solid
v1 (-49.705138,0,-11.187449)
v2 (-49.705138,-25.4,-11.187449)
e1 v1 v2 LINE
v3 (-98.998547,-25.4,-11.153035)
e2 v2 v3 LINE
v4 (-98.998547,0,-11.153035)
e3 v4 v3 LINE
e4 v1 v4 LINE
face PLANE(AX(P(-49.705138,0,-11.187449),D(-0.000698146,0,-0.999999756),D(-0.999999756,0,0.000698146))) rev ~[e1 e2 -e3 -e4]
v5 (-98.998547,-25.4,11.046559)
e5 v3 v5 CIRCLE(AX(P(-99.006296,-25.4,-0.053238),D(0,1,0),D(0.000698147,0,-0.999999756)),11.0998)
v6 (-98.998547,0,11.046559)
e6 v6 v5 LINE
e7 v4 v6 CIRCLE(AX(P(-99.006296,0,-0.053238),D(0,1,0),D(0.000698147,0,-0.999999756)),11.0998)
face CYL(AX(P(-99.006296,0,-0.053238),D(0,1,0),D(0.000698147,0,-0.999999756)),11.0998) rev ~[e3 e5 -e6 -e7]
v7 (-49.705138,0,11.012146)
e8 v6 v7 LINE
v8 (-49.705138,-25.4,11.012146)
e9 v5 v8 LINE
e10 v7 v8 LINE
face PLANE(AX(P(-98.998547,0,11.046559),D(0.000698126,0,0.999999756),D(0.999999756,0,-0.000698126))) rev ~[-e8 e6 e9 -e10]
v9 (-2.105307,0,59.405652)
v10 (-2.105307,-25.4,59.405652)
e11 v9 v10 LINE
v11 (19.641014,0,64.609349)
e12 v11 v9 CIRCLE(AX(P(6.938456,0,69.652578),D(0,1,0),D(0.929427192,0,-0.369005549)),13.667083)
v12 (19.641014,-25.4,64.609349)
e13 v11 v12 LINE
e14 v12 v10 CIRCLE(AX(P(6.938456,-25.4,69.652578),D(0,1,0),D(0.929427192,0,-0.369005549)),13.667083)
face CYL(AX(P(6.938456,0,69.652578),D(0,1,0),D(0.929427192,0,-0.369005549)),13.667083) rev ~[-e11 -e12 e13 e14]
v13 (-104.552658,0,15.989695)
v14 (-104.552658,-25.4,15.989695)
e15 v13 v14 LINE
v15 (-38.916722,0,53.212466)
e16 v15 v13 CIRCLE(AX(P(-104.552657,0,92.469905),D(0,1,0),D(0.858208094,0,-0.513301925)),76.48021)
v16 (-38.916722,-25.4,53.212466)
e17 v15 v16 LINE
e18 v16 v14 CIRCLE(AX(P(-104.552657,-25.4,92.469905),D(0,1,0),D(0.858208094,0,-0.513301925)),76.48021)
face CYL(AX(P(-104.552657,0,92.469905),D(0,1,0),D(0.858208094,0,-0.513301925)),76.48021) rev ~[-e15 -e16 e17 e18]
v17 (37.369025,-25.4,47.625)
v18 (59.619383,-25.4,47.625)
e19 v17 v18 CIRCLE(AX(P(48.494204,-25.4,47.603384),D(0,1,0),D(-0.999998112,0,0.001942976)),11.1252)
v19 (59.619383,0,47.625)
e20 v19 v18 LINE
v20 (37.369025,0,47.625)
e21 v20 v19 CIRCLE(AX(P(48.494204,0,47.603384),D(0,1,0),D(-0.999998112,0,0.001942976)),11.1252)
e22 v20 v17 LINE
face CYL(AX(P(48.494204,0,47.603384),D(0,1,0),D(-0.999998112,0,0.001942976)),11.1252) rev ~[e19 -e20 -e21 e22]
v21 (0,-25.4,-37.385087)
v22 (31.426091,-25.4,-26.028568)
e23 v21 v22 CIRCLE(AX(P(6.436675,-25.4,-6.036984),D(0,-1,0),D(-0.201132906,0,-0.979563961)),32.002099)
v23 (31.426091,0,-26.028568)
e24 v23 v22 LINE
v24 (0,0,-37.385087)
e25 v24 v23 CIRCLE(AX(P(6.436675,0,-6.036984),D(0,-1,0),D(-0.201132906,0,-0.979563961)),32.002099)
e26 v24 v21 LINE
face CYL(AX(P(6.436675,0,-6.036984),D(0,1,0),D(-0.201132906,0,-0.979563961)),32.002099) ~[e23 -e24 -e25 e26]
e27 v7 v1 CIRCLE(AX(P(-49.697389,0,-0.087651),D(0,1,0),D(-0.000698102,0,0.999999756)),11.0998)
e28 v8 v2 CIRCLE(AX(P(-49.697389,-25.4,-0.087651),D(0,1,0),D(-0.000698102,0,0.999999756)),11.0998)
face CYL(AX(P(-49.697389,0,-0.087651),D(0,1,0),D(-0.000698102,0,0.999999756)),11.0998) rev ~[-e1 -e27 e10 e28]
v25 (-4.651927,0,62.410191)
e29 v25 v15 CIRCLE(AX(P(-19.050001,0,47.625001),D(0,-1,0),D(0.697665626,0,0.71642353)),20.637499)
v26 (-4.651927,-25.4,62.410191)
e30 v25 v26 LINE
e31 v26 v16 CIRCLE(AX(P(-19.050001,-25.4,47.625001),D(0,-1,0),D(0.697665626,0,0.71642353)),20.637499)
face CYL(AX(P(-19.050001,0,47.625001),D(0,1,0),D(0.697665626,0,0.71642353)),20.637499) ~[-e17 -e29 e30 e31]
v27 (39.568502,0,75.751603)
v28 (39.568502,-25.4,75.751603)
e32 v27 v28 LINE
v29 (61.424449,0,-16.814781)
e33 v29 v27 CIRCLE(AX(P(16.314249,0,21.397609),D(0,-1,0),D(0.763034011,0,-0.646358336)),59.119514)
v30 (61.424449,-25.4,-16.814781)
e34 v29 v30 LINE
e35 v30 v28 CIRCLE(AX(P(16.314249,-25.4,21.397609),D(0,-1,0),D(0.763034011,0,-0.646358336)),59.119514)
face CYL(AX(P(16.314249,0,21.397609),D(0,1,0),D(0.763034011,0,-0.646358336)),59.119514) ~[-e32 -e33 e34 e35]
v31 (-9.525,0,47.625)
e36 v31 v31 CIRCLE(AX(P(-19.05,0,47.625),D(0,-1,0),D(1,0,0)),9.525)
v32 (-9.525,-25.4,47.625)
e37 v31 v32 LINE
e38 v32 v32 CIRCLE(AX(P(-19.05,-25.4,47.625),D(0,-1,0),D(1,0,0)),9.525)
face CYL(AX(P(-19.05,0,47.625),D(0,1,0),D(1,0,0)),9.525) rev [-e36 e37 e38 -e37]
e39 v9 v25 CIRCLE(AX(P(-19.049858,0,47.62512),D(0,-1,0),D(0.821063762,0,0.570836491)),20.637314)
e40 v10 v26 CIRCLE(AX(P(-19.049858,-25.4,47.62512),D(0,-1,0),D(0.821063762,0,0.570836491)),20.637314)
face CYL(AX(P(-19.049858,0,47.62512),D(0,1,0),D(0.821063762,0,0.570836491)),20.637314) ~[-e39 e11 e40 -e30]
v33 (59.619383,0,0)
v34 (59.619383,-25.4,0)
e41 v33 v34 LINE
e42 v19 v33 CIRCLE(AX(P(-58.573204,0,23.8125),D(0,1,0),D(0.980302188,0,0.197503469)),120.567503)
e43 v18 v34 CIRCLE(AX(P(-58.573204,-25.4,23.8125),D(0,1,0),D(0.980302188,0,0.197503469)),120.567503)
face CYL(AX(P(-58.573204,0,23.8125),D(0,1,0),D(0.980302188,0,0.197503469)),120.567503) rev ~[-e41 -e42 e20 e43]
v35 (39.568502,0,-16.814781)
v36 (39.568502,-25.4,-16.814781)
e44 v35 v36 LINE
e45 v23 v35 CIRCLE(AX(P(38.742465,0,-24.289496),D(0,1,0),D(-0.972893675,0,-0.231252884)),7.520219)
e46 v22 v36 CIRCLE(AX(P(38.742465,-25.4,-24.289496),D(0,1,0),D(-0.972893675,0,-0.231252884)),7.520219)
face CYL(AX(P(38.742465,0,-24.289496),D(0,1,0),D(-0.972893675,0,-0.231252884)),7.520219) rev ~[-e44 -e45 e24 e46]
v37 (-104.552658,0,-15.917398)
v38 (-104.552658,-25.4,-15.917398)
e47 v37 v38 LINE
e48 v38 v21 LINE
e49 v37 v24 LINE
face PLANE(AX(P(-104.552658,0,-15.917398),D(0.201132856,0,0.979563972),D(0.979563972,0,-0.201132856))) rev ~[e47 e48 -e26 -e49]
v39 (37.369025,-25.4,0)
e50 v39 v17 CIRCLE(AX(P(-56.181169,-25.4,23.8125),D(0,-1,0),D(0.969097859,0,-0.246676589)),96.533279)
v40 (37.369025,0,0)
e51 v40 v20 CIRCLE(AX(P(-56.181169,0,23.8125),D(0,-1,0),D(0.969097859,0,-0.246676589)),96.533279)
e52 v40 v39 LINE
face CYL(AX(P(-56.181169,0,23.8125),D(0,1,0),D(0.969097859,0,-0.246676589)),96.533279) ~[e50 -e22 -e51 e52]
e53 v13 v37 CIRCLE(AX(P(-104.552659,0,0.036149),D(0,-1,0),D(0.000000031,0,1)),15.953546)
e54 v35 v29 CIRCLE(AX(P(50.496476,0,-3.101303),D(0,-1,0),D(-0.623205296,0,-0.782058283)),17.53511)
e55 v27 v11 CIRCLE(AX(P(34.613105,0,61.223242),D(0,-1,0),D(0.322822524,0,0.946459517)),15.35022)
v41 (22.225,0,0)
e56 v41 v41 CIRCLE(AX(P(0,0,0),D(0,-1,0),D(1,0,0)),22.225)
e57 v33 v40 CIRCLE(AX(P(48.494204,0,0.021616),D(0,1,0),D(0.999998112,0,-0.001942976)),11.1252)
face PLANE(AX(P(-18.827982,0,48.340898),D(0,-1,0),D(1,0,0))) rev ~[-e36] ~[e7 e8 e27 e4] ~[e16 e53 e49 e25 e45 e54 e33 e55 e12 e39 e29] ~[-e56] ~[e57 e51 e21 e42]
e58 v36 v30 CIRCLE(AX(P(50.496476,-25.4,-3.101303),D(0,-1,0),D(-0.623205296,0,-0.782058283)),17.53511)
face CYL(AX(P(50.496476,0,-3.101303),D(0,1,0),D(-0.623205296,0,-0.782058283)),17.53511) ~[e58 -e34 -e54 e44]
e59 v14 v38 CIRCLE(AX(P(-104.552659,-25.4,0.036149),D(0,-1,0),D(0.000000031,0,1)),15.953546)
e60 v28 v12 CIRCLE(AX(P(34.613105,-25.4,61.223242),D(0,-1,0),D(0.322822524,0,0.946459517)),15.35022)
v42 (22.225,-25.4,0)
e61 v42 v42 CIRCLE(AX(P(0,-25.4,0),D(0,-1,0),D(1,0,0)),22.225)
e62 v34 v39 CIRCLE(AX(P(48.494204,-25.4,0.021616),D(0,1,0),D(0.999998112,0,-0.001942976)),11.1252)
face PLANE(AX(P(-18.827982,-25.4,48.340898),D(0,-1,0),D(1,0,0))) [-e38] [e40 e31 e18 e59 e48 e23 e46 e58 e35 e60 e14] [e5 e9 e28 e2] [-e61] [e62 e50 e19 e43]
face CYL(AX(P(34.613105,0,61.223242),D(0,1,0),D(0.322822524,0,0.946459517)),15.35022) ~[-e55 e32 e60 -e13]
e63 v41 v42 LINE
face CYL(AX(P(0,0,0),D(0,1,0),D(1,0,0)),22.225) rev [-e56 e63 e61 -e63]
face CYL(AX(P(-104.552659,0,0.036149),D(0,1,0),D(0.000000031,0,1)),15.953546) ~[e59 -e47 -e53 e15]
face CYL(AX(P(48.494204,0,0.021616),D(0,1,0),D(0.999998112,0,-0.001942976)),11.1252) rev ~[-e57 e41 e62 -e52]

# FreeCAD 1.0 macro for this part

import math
import FreeCAD as App
import Part
import Sketcher
from FreeCAD import Vector
Q = App.Units.Quantity

doc = App.newDocument("Part")
body = doc.addObject("PartDesign::Body", "Body")

# Sketch on XZ plane
sketch1 = body.newObject("Sketcher::SketchObject", "Sketch")
sketch1.AttachmentSupport = (doc.getObject("XZ_Plane"), [""])
sketch1.MapMode = "FlatFace"
sketch1.addGeometry([
    Part.ArcOfCircle(Part.Circle(Vector(-19.049858, 47.62512, 0), Vector(0, 0, 1), 20.637314), math.radians(34.808577), math.radians(45.760038)),  # 0
    Part.ArcOfCircle(Part.Circle(Vector(-19.050001, 47.625001, 0), Vector(0, 0, 1), 20.637499), math.radians(45.759984), math.radians(164.291496)),  # 1
    Part.ArcOfCircle(Part.Circle(Vector(-104.552657, 92.469905, 0), Vector(0, 0, 1), 76.48021), math.radians(-90), math.radians(-30.884021)),  # 2
    Part.ArcOfCircle(Part.Circle(Vector(-104.552659, 0.036149, 0), Vector(0, 0, 1), 15.953546), math.radians(89.999998), math.radians(270.000002)),  # 3
    Part.LineSegment(Vector(-104.552658, -15.917398, 0), Vector(0, -37.385087, 0)),  # 4
    Part.ArcOfCircle(Part.Circle(Vector(6.436675, -6.036984, 0), Vector(0, 0, 1), 32.002099), math.radians(-101.603216), math.radians(-38.659879)),  # 5
    Part.ArcOfCircle(Part.Circle(Vector(38.742465, -24.289496, 0), Vector(0, 0, 1), 7.520219), math.radians(83.693781), math.radians(193.370846)),  # 6
    Part.ArcOfCircle(Part.Circle(Vector(50.496476, -3.101303, 0), Vector(0, 0, 1), 17.53511), math.radians(-128.550582), math.radians(-51.449418)),  # 7
    Part.ArcOfCircle(Part.Circle(Vector(16.314249, 21.397609, 0), Vector(0, 0, 1), 59.119514), math.radians(-40.267595), math.radians(66.837323)),  # 8
    Part.ArcOfCircle(Part.Circle(Vector(34.613105, 61.223242, 0), Vector(0, 0, 1), 15.35022), math.radians(71.166295), math.radians(167.256301)),  # 9
    Part.ArcOfCircle(Part.Circle(Vector(6.938456, 69.652578, 0), Vector(0, 0, 1), 13.667083), math.radians(-131.431076), math.radians(-21.6543)),  # 10
    Part.LineSegment(Vector(-49.705138, -11.187449, 0), Vector(-98.998547, -11.153035, 0)),  # 11
    Part.ArcOfCircle(Part.Circle(Vector(-99.006296, -0.053238, 0), Vector(0, 0, 1), 11.0998), math.radians(89.959999), math.radians(270.040001)),  # 12
    Part.LineSegment(Vector(-98.998547, 11.046559, 0), Vector(-49.705138, 11.012146, 0)),  # 13
    Part.ArcOfCircle(Part.Circle(Vector(-49.697389, -0.087651, 0), Vector(0, 0, 1), 11.0998), math.radians(-90.039998), math.radians(90.039998)),  # 14
    Part.Circle(Vector(0, 0, 0), Vector(0, 0, 1), 22.225),  # 15
    Part.ArcOfCircle(Part.Circle(Vector(-58.573204, 23.8125, 0), Vector(0, 0, 1), 120.567503), math.radians(-11.391007), math.radians(11.391007)),  # 16
    Part.ArcOfCircle(Part.Circle(Vector(48.494204, 0.021616, 0), Vector(0, 0, 1), 11.1252), math.radians(-179.888676), math.radians(-0.111324)),  # 17
    Part.ArcOfCircle(Part.Circle(Vector(-56.181169, 23.8125, 0), Vector(0, 0, 1), 96.533279), math.radians(-14.280937), math.radians(14.280937)),  # 18
    Part.ArcOfCircle(Part.Circle(Vector(48.494204, 47.603384, 0), Vector(0, 0, 1), 11.1252), math.radians(0.111324), math.radians(179.888676)),  # 19
    Part.Circle(Vector(-19.05, 47.625, 0), Vector(0, 0, 1), 9.525),  # 20
], False)
sketch1.addConstraint([
    Sketcher.Constraint("Coincident", 0, 2, 1, 1),
    Sketcher.Constraint("Coincident", 1, 2, 2, 2),
    Sketcher.Constraint("Coincident", 2, 1, 3, 1),
    Sketcher.Constraint("Coincident", 3, 2, 4, 1),
    Sketcher.Constraint("Coincident", 4, 2, 5, 1),
    Sketcher.Constraint("Coincident", 5, 2, 6, 2),
    Sketcher.Constraint("Coincident", 6, 1, 7, 1),
    Sketcher.Constraint("Coincident", 7, 2, 8, 1),
    Sketcher.Constraint("Coincident", 8, 2, 9, 1),
    Sketcher.Constraint("Coincident", 9, 2, 10, 2),
    Sketcher.Constraint("Coincident", 10, 1, 0, 1),
    Sketcher.Constraint("Coincident", 11, 2, 12, 2),
    Sketcher.Constraint("Coincident", 12, 1, 13, 1),
    Sketcher.Constraint("Coincident", 13, 2, 14, 2),
    Sketcher.Constraint("Coincident", 14, 1, 11, 1),
    Sketcher.Constraint("Coincident", 16, 1, 17, 2),
    Sketcher.Constraint("Coincident", 17, 1, 18, 1),
    Sketcher.Constraint("Coincident", 18, 2, 19, 2),
    Sketcher.Constraint("Coincident", 19, 1, 16, 2),
    Sketcher.Constraint("Coincident", 15, 3, -1, 1),
    Sketcher.Constraint("Coincident", 20, 3, 1, 3),
    Sketcher.Constraint("PointOnObject", 4, 2, -2),
    Sketcher.Constraint("PointOnObject", 16, 1, -1),
    Sketcher.Constraint("PointOnObject", 17, 1, -1),
    Sketcher.Constraint("Diameter", 15, Q("1.75 in")),
    Sketcher.Constraint("Diameter", 20, Q("0.75 in")),
    Sketcher.Constraint("Radius", 1, Q("0.8125 in")),
    Sketcher.Constraint("Radius", 12, Q("0.437 in")),
    Sketcher.Constraint("Radius", 14, Q("0.437 in")),
    Sketcher.Constraint("Radius", 17, Q("0.438 in")),
    Sketcher.Constraint("Radius", 19, Q("0.438 in")),
    Sketcher.Constraint("DistanceX", 1, 3, -1, 1, Q("0.75 in")),
    Sketcher.Constraint("Radius", 5, 32.002099),
    Sketcher.Constraint("DistanceY", -1, 1, 1, 3, Q("1.875 in")),
    Sketcher.Constraint("DistanceY", -1, 1, 16, 3, Q("0.9375 in")),
    Sketcher.Constraint("DistanceY", -1, 1, 18, 3, Q("0.9375 in")),
    Sketcher.Constraint("DistanceY", -1, 1, 18, 2, Q("1.875 in")),
    Sketcher.Constraint("DistanceY", -1, 1, 19, 1, Q("1.875 in")),
    Sketcher.Constraint("Radius", 2, 76.48021),
    Sketcher.Constraint("Radius", 6, 7.520219),
    Sketcher.Constraint("Radius", 7, 17.53511),
    Sketcher.Constraint("Radius", 9, 15.35022),
    Sketcher.Constraint("Radius", 18, 96.533279),
    Sketcher.Constraint("Radius", 0, 20.637314),
    Sketcher.Constraint("Radius", 3, 15.953546),
    Sketcher.Constraint("Radius", 8, 59.119514),
    Sketcher.Constraint("Radius", 10, 13.667083),
    Sketcher.Constraint("Radius", 16, 120.567503),
    Sketcher.Constraint("DistanceX", 9, 3, 19, 3, Q("0.5464999 in")),
    Sketcher.Constraint("DistanceX", -1, 1, 6, 1, 39.568502),
    Sketcher.Constraint("DistanceX", 2, 3, 0, 3, 85.5028),
    Sketcher.Constraint("DistanceX", 3, 3, 0, 3, 85.502801),
    Sketcher.Constraint("DistanceY", 6, 3, 2, 3, 116.759401),
    Sketcher.Constraint("DistanceX", 5, 3, 7, 3, 44.0598),
    Sketcher.Constraint("DistanceY", 14, 3, 3, 3, 0.1238),
    Sketcher.Constraint("DistanceY", 5, 3, 17, 3, 6.0586),
    Sketcher.Constraint("DistanceX", 8, 2, 19, 3, 8.925702),
    Sketcher.Constraint("Distance", 11, 49.293421),
    Sketcher.Constraint("Distance", 13, 49.293421),
    Sketcher.Constraint("DistanceY", -1, 1, 0, 3, 47.62512),
    Sketcher.Constraint("DistanceY", -1, 1, 3, 3, 0.036149),
    Sketcher.Constraint("DistanceX", -1, 1, 8, 3, 16.314249),
    Sketcher.Constraint("DistanceY", -1, 1, 8, 3, 21.397609),
    Sketcher.Constraint("DistanceY", -1, 1, 9, 3, 61.223242),
    Sketcher.Constraint("DistanceY", -1, 1, 10, 3, 69.652578),
    Sketcher.Constraint("DistanceX", 14, 3, -1, 1, 49.697389),
    Sketcher.Constraint("DistanceY", -1, 1, 0, 2, 62.410191),
    Sketcher.Constraint("DistanceX", -1, 1, 5, 2, 31.426091),
    Sketcher.Constraint("DistanceY", 5, 2, -1, 1, 26.028568),
    Sketcher.Constraint("DistanceX", -1, 1, 7, 2, 61.424449),
    Sketcher.Constraint("DistanceY", -1, 1, 9, 2, 64.609349),
    Sketcher.Constraint("DistanceY", -1, 1, 12, 1, 11.046559),
    Sketcher.Constraint("DistanceX", 14, 1, -1, 1, 49.705138),
    Sketcher.Constraint("DistanceX", 2, 3, 12, 3, 5.546361),
    Sketcher.Constraint("DistanceX", 2, 1, 12, 3, 5.546362),
    Sketcher.Constraint("DistanceX", 3, 2, 12, 3, 5.546362),
    Sketcher.Constraint("DistanceX", 2, 1, 12, 1, 5.554111),
])
pad1 = body.newObject("PartDesign::Pad", "Pad")
pad1.Profile = sketch1
pad1.Length = Q("1 in")

doc.recompute()
